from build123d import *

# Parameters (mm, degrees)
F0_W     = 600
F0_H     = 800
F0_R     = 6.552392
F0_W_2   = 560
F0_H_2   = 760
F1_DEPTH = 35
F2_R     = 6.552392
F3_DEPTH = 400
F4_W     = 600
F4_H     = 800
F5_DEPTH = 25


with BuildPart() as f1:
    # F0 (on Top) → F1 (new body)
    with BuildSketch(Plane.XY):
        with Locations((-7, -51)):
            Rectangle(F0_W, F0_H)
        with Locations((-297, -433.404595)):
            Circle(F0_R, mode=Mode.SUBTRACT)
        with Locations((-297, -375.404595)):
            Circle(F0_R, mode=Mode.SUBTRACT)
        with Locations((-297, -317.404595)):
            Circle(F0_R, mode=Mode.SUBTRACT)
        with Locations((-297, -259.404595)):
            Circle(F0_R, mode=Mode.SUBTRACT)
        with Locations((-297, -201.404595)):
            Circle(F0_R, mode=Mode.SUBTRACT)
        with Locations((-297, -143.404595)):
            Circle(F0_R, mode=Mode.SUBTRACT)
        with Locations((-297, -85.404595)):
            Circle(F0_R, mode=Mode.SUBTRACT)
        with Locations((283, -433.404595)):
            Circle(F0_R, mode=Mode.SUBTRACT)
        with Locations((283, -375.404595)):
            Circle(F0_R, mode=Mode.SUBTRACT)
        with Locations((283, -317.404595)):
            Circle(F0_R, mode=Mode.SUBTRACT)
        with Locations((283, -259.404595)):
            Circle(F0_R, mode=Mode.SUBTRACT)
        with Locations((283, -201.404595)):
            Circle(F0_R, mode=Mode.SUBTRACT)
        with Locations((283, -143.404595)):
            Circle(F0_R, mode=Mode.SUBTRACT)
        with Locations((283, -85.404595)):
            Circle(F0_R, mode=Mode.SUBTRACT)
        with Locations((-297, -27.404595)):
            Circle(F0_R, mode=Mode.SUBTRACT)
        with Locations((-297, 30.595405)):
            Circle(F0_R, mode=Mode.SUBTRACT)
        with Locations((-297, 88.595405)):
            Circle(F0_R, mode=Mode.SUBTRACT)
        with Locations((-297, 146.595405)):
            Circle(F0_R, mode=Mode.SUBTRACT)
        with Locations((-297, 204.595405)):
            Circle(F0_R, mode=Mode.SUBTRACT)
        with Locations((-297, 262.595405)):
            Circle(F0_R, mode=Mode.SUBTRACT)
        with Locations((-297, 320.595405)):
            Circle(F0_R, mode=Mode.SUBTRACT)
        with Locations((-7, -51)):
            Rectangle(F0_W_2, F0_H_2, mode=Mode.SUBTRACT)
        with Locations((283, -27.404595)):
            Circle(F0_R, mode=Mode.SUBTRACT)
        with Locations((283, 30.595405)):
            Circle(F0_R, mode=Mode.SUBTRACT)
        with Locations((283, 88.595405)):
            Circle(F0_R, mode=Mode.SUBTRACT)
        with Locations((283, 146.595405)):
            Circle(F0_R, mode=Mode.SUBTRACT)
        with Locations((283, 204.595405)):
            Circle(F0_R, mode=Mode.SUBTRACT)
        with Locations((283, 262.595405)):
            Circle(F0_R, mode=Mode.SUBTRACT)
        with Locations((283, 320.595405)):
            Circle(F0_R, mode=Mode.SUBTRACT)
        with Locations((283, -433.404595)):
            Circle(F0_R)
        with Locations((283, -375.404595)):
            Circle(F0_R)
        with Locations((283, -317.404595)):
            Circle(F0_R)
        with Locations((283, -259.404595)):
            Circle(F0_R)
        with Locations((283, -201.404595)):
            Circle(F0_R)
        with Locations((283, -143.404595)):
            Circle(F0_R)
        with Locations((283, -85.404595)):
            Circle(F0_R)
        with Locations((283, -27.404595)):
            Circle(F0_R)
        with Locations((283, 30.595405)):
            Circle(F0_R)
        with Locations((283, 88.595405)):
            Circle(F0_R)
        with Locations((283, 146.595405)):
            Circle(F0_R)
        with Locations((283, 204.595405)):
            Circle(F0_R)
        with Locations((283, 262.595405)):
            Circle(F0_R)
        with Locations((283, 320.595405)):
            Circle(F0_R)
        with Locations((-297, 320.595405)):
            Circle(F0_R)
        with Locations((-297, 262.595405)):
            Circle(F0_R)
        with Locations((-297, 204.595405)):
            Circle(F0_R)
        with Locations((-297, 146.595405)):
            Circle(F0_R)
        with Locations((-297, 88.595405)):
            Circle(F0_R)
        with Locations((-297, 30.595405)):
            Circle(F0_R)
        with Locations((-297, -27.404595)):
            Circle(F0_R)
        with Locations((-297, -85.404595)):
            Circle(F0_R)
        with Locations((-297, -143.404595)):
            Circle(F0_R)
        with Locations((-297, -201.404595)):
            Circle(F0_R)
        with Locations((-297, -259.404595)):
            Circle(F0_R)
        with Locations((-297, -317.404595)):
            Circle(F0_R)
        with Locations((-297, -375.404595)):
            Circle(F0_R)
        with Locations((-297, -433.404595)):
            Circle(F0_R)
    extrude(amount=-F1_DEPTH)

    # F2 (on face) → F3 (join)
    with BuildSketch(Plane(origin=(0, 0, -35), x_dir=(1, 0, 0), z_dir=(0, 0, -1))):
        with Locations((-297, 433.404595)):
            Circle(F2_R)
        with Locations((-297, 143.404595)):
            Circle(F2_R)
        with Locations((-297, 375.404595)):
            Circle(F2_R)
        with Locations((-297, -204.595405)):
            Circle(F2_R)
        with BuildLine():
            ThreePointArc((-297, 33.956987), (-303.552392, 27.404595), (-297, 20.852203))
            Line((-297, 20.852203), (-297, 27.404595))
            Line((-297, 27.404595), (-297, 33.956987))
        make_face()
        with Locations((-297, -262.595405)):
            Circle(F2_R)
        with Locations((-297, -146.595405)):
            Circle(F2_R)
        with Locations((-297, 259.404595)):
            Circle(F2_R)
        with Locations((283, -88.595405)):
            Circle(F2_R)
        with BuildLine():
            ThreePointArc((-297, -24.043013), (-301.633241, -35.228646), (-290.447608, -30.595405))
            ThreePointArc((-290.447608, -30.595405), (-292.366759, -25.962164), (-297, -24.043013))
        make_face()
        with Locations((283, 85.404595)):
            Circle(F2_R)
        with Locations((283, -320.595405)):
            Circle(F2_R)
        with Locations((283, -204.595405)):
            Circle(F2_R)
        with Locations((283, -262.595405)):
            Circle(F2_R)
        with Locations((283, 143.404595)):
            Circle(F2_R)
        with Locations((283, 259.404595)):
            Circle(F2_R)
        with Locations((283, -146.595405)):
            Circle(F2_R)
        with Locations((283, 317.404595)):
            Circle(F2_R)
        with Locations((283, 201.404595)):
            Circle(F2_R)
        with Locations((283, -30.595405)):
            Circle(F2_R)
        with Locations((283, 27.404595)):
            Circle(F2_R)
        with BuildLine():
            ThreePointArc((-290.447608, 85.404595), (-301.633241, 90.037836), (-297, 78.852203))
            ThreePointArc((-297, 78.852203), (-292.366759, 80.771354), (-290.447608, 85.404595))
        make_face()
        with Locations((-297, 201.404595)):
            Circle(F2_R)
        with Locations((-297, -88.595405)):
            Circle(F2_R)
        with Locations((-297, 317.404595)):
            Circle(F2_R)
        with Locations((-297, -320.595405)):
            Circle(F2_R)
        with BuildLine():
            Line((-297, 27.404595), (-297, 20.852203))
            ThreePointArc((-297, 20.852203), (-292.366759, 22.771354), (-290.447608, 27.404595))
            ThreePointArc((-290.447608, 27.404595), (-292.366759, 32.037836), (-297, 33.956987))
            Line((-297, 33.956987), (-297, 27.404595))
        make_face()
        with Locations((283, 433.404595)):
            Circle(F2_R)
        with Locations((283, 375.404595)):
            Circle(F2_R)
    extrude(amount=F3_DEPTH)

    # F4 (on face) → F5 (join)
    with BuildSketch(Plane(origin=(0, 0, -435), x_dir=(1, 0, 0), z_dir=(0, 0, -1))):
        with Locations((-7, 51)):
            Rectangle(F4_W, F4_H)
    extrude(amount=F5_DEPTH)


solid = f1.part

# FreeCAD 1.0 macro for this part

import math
import FreeCAD as App
import Part
import Sketcher

V = App.Vector
Q = App.Units.Quantity


def add_polygon(sketch, points):
    """Adds a closed chain of lines whose ends are joined by coincident constraints."""
    first, n = sketch.GeometryCount, len(points)
    for a, b in zip(points, points[1:] + points[:1]):
        sketch.addGeometry(Part.LineSegment(App.Vector(*a, 0), App.Vector(*b, 0)), False)
    for i in range(n):
        sketch.addConstraint(Sketcher.Constraint("Coincident", first + i, 2, first + (i + 1) % n, 1))

doc = App.newDocument("Part")
params = doc.addObject("Spreadsheet::Sheet", "Params")
for row, (alias, value) in enumerate([
    ("sketch1_width", "600 mm"),
    ("sketch1_width2", "560 mm"),
    ("sketch1_height", "800 mm"),
    ("sketch1_height2", "760 mm"),
    ("pad1_length", "35 mm"),
    ("pad2_length", "400 mm"),
    ("sketch3_width", "600 mm"),
    ("sketch3_height", "800 mm"),
    ("pad3_length", "25 mm"),
], start=1):
    params.set(f"A{row}", alias)
    params.set(f"B{row}", "=" + value)
    params.setAlias(f"B{row}", alias)

body = doc.addObject("PartDesign::Body", "Body")

sketch1 = doc.addObject("Sketcher::SketchObject", "Sketch")
body.addObject(sketch1)
sketch1.AttachmentSupport = (doc.XY_Plane, [""])
sketch1.MapMode = "FlatFace"
add_polygon(sketch1, [(-307, 349), (-307, -451), (293, -451), (293, 349)])
add_polygon(sketch1, [(273, -431), (-287, -431), (-287, 329), (273, 329)])
sketch1.addConstraint([
    Sketcher.Constraint("Vertical", 0),
    Sketcher.Constraint("Horizontal", 1),
    Sketcher.Constraint("Vertical", 2),
    Sketcher.Constraint("Horizontal", 3),
    Sketcher.Constraint("Horizontal", 4),
    Sketcher.Constraint("Vertical", 5),
    Sketcher.Constraint("Horizontal", 6),
    Sketcher.Constraint("Vertical", 7),
    Sketcher.Constraint("DistanceX", 1, 1, 1, 2, Q("600 mm")),
    Sketcher.Constraint("DistanceX", 4, 2, 4, 1, Q("560 mm")),
    Sketcher.Constraint("DistanceY", 0, 2, 0, 1, Q("800 mm")),
    Sketcher.Constraint("DistanceY", 5, 1, 5, 2, Q("760 mm")),
    Sketcher.Constraint("DistanceX", 0, 2, -1, 1, Q("307 mm")),
    Sketcher.Constraint("DistanceY", 0, 2, -1, 1, Q("451 mm")),
    Sketcher.Constraint("DistanceX", 4, 2, -1, 1, Q("287 mm")),
    Sketcher.Constraint("DistanceY", 4, 2, -1, 1, Q("431 mm")),
])
sketch1.setExpression("Constraints[16]", "Params.sketch1_width")
sketch1.setExpression("Constraints[17]", "Params.sketch1_width2")
sketch1.setExpression("Constraints[18]", "Params.sketch1_height")
sketch1.setExpression("Constraints[19]", "Params.sketch1_height2")
pad1 = doc.addObject("PartDesign::Pad", "Pad")
body.addObject(pad1)
pad1.Profile = sketch1
pad1.setExpression("Length", "Params.pad1_length")
pad1.Reversed = True

sketch2 = doc.addObject("Sketcher::SketchObject", "Sketch001")
body.addObject(sketch2)
sketch2.AttachmentSupport = (doc.XY_Plane, [""])
sketch2.MapMode = "FlatFace"
sketch2.AttachmentOffset = App.Placement(V(0, 0, -35), App.Rotation())
sketch2.addGeometry([
    Part.Circle(V(-297, -433, 0), V(0, 0, 1), 7),
    Part.Circle(V(-297, -143, 0), V(0, 0, 1), 7),
    Part.Circle(V(-297, -375, 0), V(0, 0, 1), 7),
    Part.Circle(V(-297, 205, 0), V(0, 0, 1), 7),
    Part.ArcOfCircle(Part.Circle(V(-297, -27, 0), V(0, 0, 1), 7), math.radians(90), math.radians(270)),
    Part.ArcOfCircle(Part.Circle(V(-297, -27, 0), V(0, 0, 1), 7), math.radians(0), math.radians(90)),
    Part.ArcOfCircle(Part.Circle(V(-297, -27, 0), V(0, 0, 1), 7), math.radians(-90), math.radians(0)),
    Part.Circle(V(-297, 263, 0), V(0, 0, 1), 7),
    Part.Circle(V(-297, 147, 0), V(0, 0, 1), 7),
    Part.Circle(V(-297, -259, 0), V(0, 0, 1), 7),
    Part.Circle(V(283, 89, 0), V(0, 0, 1), 7),
    Part.ArcOfCircle(Part.Circle(V(-297, 31, 0), V(0, 0, 1), 7), math.radians(0), math.radians(270)),
    Part.ArcOfCircle(Part.Circle(V(-297, 31, 0), V(0, 0, 1), 7), math.radians(-90), math.radians(0)),
    Part.Circle(V(283, -85, 0), V(0, 0, 1), 7),
    Part.Circle(V(283, 321, 0), V(0, 0, 1), 7),
    Part.Circle(V(283, 205, 0), V(0, 0, 1), 7),
    Part.Circle(V(283, 263, 0), V(0, 0, 1), 7),
    Part.Circle(V(283, -143, 0), V(0, 0, 1), 7),
    Part.Circle(V(283, -259, 0), V(0, 0, 1), 7),
    Part.Circle(V(283, 147, 0), V(0, 0, 1), 7),
    Part.Circle(V(283, -317, 0), V(0, 0, 1), 7),
    Part.Circle(V(283, -201, 0), V(0, 0, 1), 7),
    Part.Circle(V(283, 31, 0), V(0, 0, 1), 7),
    Part.Circle(V(283, -27, 0), V(0, 0, 1), 7),
    Part.ArcOfCircle(Part.Circle(V(-297, -85, 0), V(0, 0, 1), 7), math.radians(90), math.radians(360)),
    Part.ArcOfCircle(Part.Circle(V(-297, -85, 0), V(0, 0, 1), 7), math.radians(0), math.radians(90)),
    Part.Circle(V(-297, -201, 0), V(0, 0, 1), 7),
    Part.Circle(V(-297, 89, 0), V(0, 0, 1), 7),
    Part.Circle(V(-297, -317, 0), V(0, 0, 1), 7),
    Part.Circle(V(-297, 321, 0), V(0, 0, 1), 7),
    Part.Circle(V(283, -433, 0), V(0, 0, 1), 7),
    Part.Circle(V(283, -375, 0), V(0, 0, 1), 7),
], False)
sketch2.addConstraint([
    Sketcher.Constraint("Tangent", 4, 1, 5, 2),
    Sketcher.Constraint("Tangent", 5, 1, 6, 2),
    Sketcher.Constraint("Tangent", 6, 1, 4, 2),
    Sketcher.Constraint("Tangent", 11, 1, 12, 2),
    Sketcher.Constraint("Coincident", 12, 1, 11, 2),
    Sketcher.Constraint("Tangent", 24, 1, 25, 2),
    Sketcher.Constraint("Coincident", 25, 1, 24, 2),
    Sketcher.Constraint("Equal", 0, 1),
    Sketcher.Constraint("Equal", 1, 2),
    Sketcher.Constraint("Equal", 2, 3),
    Sketcher.Constraint("Equal", 3, 4),
    Sketcher.Constraint("Equal", 6, 7),
    Sketcher.Constraint("Equal", 7, 8),
    Sketcher.Constraint("Equal", 8, 9),
    Sketcher.Constraint("Equal", 9, 10),
    Sketcher.Constraint("Equal", 10, 11),
    Sketcher.Constraint("Equal", 12, 13),
    Sketcher.Constraint("Equal", 13, 14),
    Sketcher.Constraint("Equal", 14, 15),
    Sketcher.Constraint("Equal", 15, 16),
    Sketcher.Constraint("Equal", 16, 17),
    Sketcher.Constraint("Equal", 17, 18),
    Sketcher.Constraint("Equal", 18, 19),
    Sketcher.Constraint("Equal", 19, 20),
    Sketcher.Constraint("Equal", 20, 21),
    Sketcher.Constraint("Equal", 21, 22),
    Sketcher.Constraint("Equal", 22, 23),
    Sketcher.Constraint("Equal", 23, 24),
    Sketcher.Constraint("Equal", 25, 26),
    Sketcher.Constraint("Equal", 26, 27),
    Sketcher.Constraint("Equal", 27, 28),
    Sketcher.Constraint("Equal", 28, 29),
    Sketcher.Constraint("Equal", 29, 30),
    Sketcher.Constraint("Equal", 30, 31),
    Sketcher.Constraint("Horizontal", 3, 3, 15, 3),
    Sketcher.Constraint("Horizontal", 7, 3, 16, 3),
    Sketcher.Constraint("Horizontal", 1, 3, 17, 3),
    Sketcher.Constraint("Horizontal", 9, 3, 18, 3),
    Sketcher.Constraint("Horizontal", 8, 3, 19, 3),
    Sketcher.Constraint("Horizontal", 12, 3, 22, 3),
    Sketcher.Constraint("Horizontal", 6, 3, 23, 3),
    Sketcher.Constraint("Horizontal", 13, 3, 24, 3),
    Sketcher.Constraint("Horizontal", 21, 3, 26, 3),
    Sketcher.Constraint("Horizontal", 10, 3, 27, 3),
    Sketcher.Constraint("Horizontal", 20, 3, 28, 3),
    Sketcher.Constraint("Horizontal", 14, 3, 29, 3),
    Sketcher.Constraint("Horizontal", 0, 3, 30, 3),
    Sketcher.Constraint("Horizontal", 2, 3, 31, 3),
    Sketcher.Constraint("Horizontal", 23, 3, 5, 1),
    Sketcher.Constraint("Horizontal", 22, 3, 11, 1),
    Sketcher.Constraint("Horizontal", 24, 3, 25, 1),
    Sketcher.Constraint("Vertical", 0, 3, 1, 3),
    Sketcher.Constraint("Vertical", 1, 3, 2, 3),
    Sketcher.Constraint("Vertical", 2, 3, 3, 3),
    Sketcher.Constraint("Vertical", 3, 3, 4, 3),
    Sketcher.Constraint("Vertical", 6, 3, 7, 3),
    Sketcher.Constraint("Vertical", 7, 3, 8, 3),
    Sketcher.Constraint("Vertical", 8, 3, 9, 3),
    Sketcher.Constraint("Vertical", 9, 3, 11, 3),
    Sketcher.Constraint("Vertical", 10, 3, 13, 3),
    Sketcher.Constraint("Vertical", 13, 3, 14, 3),
    Sketcher.Constraint("Vertical", 14, 3, 15, 3),
    Sketcher.Constraint("Vertical", 15, 3, 16, 3),
    Sketcher.Constraint("Vertical", 16, 3, 17, 3),
    Sketcher.Constraint("Vertical", 17, 3, 18, 3),
    Sketcher.Constraint("Vertical", 18, 3, 19, 3),
    Sketcher.Constraint("Vertical", 19, 3, 20, 3),
    Sketcher.Constraint("Vertical", 20, 3, 21, 3),
    Sketcher.Constraint("Vertical", 21, 3, 22, 3),
    Sketcher.Constraint("Vertical", 22, 3, 23, 3),
    Sketcher.Constraint("Vertical", 12, 3, 24, 3),
    Sketcher.Constraint("Vertical", 25, 3, 26, 3),
    Sketcher.Constraint("Vertical", 26, 3, 27, 3),
    Sketcher.Constraint("Vertical", 27, 3, 28, 3),
    Sketcher.Constraint("Vertical", 28, 3, 29, 3),
    Sketcher.Constraint("Vertical", 23, 3, 30, 3),
    Sketcher.Constraint("Vertical", 30, 3, 31, 3),
    Sketcher.Constraint("Vertical", 29, 3, 4, 1),
    Sketcher.Constraint("Vertical", 4, 1, 6, 1),
    Sketcher.Constraint("Vertical", 6, 1, 12, 1),
    Sketcher.Constraint("Vertical", 12, 1, 24, 1),
    Sketcher.Constraint("DistanceX", 0, 3, -1, 1, Q("297 mm")),
    Sketcher.Constraint("DistanceX", -1, 1, 10, 3, Q("283 mm")),
    Sketcher.Constraint("DistanceY", 0, 3, 1, 3, Q("290 mm")),
    Sketcher.Constraint("DistanceY", 0, 3, 2, 3, Q("58 mm")),
    Sketcher.Constraint("DistanceY", 1, 3, 3, 3, Q("348 mm")),
    Sketcher.Constraint("DistanceY", 1, 3, 4, 3, Q("116 mm")),
    Sketcher.Constraint("DistanceY", 3, 3, 7, 3, Q("58 mm")),
    Sketcher.Constraint("DistanceY", 8, 3, 3, 3, Q("58 mm")),
    Sketcher.Constraint("DistanceY", 9, 3, 1, 3, Q("116 mm")),
    Sketcher.Constraint("DistanceY", 10, 3, 8, 3, Q("58 mm")),
    Sketcher.Constraint("DistanceY", 5, 3, 11, 3, Q("57.999999 mm")),
    Sketcher.Constraint("DistanceY", 13, 3, 10, 3, Q("174 mm")),
    Sketcher.Constraint("DistanceY", 10, 3, 14, 3, Q("232 mm")),
    Sketcher.Constraint("DistanceY", 20, 3, 18, 3, Q("58 mm")),
    Sketcher.Constraint("DistanceY", 18, 3, 21, 3, Q("58 mm")),
    Sketcher.Constraint("Radius", 5, Q("6.552391 mm")),
    Sketcher.Constraint("DistanceY", 0, 3, -1, 1, Q("433.404595 mm")),
])
pad2 = doc.addObject("PartDesign::Pad", "Pad001")
body.addObject(pad2)
pad2.Profile = sketch2
pad2.setExpression("Length", "Params.pad2_length")
pad2.Reversed = True

sketch3 = doc.addObject("Sketcher::SketchObject", "Sketch002")
body.addObject(sketch3)
sketch3.AttachmentSupport = (doc.XY_Plane, [""])
sketch3.MapMode = "FlatFace"
sketch3.AttachmentOffset = App.Placement(V(0, 0, -435), App.Rotation())
add_polygon(sketch3, [(-307, -451), (-307, 349), (293, 349), (293, -451)])
sketch3.addConstraint([
    Sketcher.Constraint("Vertical", 0),
    Sketcher.Constraint("Horizontal", 1),
    Sketcher.Constraint("Vertical", 2),
    Sketcher.Constraint("Horizontal", 3),
    Sketcher.Constraint("DistanceX", 1, 1, 1, 2, Q("600 mm")),
    Sketcher.Constraint("DistanceY", 0, 1, 0, 2, Q("800 mm")),
    Sketcher.Constraint("DistanceX", 0, 2, -1, 1, Q("307 mm")),
    Sketcher.Constraint("DistanceY", -1, 1, 0, 2, Q("349 mm")),
])
sketch3.setExpression("Constraints[8]", "Params.sketch3_width")
sketch3.setExpression("Constraints[9]", "Params.sketch3_height")
pad3 = doc.addObject("PartDesign::Pad", "Pad002")
body.addObject(pad3)
pad3.Profile = sketch3
pad3.setExpression("Length", "Params.pad3_length")
pad3.Reversed = True

doc.recompute()
